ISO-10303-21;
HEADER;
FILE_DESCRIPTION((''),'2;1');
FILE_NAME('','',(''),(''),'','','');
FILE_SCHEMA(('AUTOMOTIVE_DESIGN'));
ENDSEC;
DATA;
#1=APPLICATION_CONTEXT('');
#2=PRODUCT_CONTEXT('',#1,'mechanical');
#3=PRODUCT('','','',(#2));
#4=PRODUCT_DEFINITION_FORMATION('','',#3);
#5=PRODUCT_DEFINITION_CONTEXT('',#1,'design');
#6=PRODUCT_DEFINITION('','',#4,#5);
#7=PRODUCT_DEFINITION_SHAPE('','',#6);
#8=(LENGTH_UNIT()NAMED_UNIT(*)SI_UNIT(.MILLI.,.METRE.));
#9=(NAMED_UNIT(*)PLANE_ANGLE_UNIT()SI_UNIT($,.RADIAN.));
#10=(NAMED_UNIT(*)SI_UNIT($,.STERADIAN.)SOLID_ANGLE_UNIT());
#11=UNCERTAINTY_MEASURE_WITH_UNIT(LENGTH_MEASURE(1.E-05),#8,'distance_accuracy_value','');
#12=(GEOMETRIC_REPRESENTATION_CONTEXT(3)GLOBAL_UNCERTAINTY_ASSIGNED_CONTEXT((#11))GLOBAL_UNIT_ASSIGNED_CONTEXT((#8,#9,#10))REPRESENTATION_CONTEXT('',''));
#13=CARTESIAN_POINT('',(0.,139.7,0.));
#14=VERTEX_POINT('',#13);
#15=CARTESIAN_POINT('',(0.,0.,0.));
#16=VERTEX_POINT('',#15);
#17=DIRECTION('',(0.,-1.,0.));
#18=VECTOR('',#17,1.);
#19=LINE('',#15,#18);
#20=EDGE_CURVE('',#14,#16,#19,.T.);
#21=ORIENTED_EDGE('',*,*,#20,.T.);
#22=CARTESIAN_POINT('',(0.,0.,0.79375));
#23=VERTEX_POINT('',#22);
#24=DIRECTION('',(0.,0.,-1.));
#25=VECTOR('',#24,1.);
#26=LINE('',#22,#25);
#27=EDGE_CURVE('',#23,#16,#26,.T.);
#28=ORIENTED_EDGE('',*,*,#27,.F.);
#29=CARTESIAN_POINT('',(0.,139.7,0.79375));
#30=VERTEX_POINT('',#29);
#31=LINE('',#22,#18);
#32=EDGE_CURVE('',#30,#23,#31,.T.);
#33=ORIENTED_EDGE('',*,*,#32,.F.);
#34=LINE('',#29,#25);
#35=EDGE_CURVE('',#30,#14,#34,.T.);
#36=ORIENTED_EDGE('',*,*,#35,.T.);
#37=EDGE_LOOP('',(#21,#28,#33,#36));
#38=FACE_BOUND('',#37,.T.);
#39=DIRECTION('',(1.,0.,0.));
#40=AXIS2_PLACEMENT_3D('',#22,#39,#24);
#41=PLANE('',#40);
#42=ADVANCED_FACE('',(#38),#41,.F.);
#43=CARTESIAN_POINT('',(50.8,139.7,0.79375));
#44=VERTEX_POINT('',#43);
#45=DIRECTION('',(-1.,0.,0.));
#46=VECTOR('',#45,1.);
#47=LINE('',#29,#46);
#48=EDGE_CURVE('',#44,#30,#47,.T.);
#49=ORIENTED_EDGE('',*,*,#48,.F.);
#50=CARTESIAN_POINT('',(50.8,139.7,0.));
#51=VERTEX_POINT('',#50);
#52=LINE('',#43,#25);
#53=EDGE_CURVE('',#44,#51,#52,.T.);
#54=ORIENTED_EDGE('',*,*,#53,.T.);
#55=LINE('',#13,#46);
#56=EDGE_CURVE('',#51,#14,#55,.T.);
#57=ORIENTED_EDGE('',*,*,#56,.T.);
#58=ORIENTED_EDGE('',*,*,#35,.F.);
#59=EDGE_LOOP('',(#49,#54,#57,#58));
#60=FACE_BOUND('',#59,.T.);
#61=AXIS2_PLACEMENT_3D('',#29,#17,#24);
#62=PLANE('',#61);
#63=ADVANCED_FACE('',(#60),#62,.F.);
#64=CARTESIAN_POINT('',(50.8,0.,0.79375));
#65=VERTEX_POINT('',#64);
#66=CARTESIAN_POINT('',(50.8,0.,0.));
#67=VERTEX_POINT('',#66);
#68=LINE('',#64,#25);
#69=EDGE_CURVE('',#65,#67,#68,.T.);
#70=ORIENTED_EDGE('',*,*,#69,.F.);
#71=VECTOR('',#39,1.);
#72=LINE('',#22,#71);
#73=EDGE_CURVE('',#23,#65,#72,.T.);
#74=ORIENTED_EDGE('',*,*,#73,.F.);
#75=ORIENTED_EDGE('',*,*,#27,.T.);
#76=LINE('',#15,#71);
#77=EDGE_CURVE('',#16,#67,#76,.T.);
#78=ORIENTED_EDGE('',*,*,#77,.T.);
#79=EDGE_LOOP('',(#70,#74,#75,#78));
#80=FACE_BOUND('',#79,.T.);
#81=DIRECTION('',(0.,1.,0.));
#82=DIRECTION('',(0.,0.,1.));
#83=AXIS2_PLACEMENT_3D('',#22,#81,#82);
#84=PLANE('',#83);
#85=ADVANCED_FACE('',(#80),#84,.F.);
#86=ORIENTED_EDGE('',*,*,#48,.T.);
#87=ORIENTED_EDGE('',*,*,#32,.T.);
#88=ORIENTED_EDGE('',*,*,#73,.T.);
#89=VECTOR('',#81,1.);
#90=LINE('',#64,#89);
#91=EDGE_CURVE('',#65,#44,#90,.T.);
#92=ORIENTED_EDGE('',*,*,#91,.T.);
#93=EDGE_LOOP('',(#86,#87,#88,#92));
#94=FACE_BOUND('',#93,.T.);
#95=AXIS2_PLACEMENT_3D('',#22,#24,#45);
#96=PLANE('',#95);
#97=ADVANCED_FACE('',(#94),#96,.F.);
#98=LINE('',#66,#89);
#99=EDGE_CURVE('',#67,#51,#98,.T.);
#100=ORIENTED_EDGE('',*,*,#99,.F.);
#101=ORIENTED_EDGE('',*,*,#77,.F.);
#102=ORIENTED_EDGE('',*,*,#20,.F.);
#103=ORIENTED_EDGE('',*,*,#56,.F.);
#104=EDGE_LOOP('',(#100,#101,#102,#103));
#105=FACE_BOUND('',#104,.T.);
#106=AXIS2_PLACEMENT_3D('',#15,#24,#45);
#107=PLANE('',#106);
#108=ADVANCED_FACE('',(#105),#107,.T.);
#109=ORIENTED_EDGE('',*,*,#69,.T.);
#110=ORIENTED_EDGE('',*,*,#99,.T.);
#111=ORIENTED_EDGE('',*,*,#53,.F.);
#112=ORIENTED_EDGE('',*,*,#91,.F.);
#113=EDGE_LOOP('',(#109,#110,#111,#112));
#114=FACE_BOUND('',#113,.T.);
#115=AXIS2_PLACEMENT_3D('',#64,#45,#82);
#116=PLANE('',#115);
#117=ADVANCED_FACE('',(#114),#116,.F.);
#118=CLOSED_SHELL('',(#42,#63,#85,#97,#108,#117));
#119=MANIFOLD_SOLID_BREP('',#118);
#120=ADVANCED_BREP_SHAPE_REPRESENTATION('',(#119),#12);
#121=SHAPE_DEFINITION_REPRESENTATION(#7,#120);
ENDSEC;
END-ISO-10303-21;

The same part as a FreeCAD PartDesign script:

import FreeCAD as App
import Part
import Sketcher
Q = App.Units.Quantity

doc = App.newDocument("Part")
body = doc.addObject("PartDesign::Body", "Body")

# Sketch on XY plane
sketch1 = body.newObject("Sketcher::SketchObject", "Sketch")
sketch1.AttachmentSupport = (doc.getObject("XY_Plane"), [""])
sketch1.MapMode = "FlatFace"
sketch1.addGeometry([
    Part.LineSegment(App.Vector(0, 139.7, 0), App.Vector(0, 0, 0)),
    Part.LineSegment(App.Vector(0, 0, 0), App.Vector(50.8, 0, 0)),
    Part.LineSegment(App.Vector(50.8, 0, 0), App.Vector(50.8, 139.7, 0)),
    Part.LineSegment(App.Vector(50.8, 139.7, 0), App.Vector(0, 139.7, 0)),
], False)
sketch1.addConstraint([
    Sketcher.Constraint("Coincident", 0, 2, 1, 1),
    Sketcher.Constraint("Coincident", 1, 2, 2, 1),
    Sketcher.Constraint("Coincident", 2, 2, 3, 1),
    Sketcher.Constraint("Coincident", 3, 2, 0, 1),
    Sketcher.Constraint("Vertical", 0),
    Sketcher.Constraint("Horizontal", 1),
    Sketcher.Constraint("Vertical", 2),
    Sketcher.Constraint("Horizontal", 3),
    Sketcher.Constraint("Coincident", 0, 2, -1, 1),
    Sketcher.Constraint("DistanceX", 1, 1, 1, 2, Q("2 in")),
    Sketcher.Constraint("DistanceY", 0, 2, 0, 1, Q("5.5 in")),
])
pad1 = body.newObject("PartDesign::Pad", "Pad")
pad1.Profile = sketch1
pad1.Length = Q("0.03125 in")

doc.recompute()
